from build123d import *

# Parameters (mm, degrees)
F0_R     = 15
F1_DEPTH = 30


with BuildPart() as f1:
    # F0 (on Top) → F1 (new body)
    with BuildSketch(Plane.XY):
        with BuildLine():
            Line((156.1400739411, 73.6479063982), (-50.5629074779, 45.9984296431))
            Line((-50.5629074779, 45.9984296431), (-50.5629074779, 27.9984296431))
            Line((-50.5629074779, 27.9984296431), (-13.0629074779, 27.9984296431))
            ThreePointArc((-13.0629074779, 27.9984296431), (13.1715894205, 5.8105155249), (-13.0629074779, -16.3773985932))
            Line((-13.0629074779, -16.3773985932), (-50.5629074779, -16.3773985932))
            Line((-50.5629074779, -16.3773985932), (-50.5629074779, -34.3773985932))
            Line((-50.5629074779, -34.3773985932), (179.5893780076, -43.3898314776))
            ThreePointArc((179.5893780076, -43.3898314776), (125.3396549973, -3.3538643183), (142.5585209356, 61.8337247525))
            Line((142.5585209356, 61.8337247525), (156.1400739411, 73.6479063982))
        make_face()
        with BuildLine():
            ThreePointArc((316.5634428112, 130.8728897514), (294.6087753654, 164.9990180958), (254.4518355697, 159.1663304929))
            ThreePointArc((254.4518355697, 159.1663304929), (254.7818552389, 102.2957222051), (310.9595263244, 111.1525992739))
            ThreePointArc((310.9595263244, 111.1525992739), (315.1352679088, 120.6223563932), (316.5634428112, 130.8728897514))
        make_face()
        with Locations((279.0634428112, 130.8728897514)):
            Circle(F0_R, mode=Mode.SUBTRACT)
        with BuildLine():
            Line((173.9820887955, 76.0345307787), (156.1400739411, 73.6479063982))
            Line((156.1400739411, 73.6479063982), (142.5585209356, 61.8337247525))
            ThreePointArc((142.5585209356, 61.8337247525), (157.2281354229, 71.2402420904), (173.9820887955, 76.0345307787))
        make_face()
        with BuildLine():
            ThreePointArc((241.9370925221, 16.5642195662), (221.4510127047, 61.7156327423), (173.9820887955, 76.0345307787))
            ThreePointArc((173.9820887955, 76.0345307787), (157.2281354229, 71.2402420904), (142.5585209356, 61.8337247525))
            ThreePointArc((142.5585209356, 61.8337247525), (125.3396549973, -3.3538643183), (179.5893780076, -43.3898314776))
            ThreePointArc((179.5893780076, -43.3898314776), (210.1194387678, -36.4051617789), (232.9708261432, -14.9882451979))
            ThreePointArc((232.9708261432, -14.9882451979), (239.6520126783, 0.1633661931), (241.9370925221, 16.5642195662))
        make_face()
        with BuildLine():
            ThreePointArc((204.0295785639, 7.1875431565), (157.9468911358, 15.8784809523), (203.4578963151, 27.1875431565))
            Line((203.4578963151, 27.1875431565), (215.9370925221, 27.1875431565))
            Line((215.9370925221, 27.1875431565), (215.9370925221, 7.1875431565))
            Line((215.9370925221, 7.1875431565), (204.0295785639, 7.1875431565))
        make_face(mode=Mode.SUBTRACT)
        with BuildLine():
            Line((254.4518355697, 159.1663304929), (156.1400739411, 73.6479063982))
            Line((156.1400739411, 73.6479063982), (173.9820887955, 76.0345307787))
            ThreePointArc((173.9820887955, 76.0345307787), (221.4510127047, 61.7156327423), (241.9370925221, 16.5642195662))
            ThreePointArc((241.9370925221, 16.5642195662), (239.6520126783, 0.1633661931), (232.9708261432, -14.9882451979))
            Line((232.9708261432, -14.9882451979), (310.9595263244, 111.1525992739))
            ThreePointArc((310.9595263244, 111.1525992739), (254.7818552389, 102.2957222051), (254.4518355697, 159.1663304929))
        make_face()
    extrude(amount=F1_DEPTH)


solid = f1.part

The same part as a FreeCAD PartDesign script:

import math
import FreeCAD as App
import Part
import Sketcher
from FreeCAD import Vector
Q = App.Units.Quantity

doc = App.newDocument("Part")
body = doc.addObject("PartDesign::Body", "Body")

sketch1 = body.newObject("Sketcher::SketchObject", "Sketch")
sketch1.AttachmentSupport = (doc.getObject("XY_Plane"), [""])
sketch1.MapMode = "FlatFace"
sketch1.addGeometry([
    Part.LineSegment(Vector(156.140074, 73.647906, 0), Vector(-50.562907, 45.99843, 0)),
    Part.LineSegment(Vector(-50.562907, 45.99843, 0), Vector(-50.562907, 27.99843, 0)),
    Part.LineSegment(Vector(-50.562907, 27.99843, 0), Vector(-13.062907, 27.99843, 0)),
    Part.ArcOfCircle(Part.Circle(Vector(-9.328411, 5.810516, 0), Vector(0, 0, 1), 22.5), math.radians(-99.554032), math.radians(99.554032)),
    Part.LineSegment(Vector(-13.062907, -16.377399, 0), Vector(-50.562907, -16.377399, 0)),
    Part.LineSegment(Vector(-50.562907, -16.377399, 0), Vector(-50.562907, -34.377399, 0)),
    Part.LineSegment(Vector(-50.562907, -34.377399, 0), Vector(179.589378, -43.389831, 0)),
    Part.ArcOfCircle(Part.Circle(Vector(181.937093, 16.56422, 0), Vector(0, 0, 1), 60), math.radians(-92.242475), math.radians(-31.727127)),
    Part.LineSegment(Vector(232.970826, -14.988245, 0), Vector(310.959526, 111.152599, 0)),
    Part.ArcOfCircle(Part.Circle(Vector(279.063443, 130.87289, 0), Vector(0, 0, 1), 37.5), math.radians(-31.727127), math.radians(0)),
    Part.ArcOfCircle(Part.Circle(Vector(279.063443, 130.87289, 0), Vector(0, 0, 1), 37.5), math.radians(0), math.radians(131.01902)),
    Part.LineSegment(Vector(254.451836, 159.16633, 0), Vector(156.140074, 73.647906, 0)),
    Part.LineSegment(Vector(215.937093, 7.187543, 0), Vector(204.029579, 7.187543, 0)),
    Part.ArcOfCircle(Part.Circle(Vector(181.937093, 16.56422, 0), Vector(0, 0, 1), 24), math.radians(26.272348), math.radians(337.002258)),
    Part.LineSegment(Vector(203.457896, 27.187543, 0), Vector(215.937093, 27.187543, 0)),
    Part.LineSegment(Vector(215.937093, 27.187543, 0), Vector(215.937093, 7.187543, 0)),
    Part.Circle(Vector(279.063443, 130.87289, 0), Vector(0, 0, 1), 15),
], False)
sketch1.addConstraint([
    Sketcher.Constraint("Coincident", 0, 2, 1, 1),
    Sketcher.Constraint("Coincident", 1, 2, 2, 1),
    Sketcher.Constraint("Coincident", 2, 2, 3, 2),
    Sketcher.Constraint("Coincident", 3, 1, 4, 1),
    Sketcher.Constraint("Coincident", 4, 2, 5, 1),
    Sketcher.Constraint("Coincident", 5, 2, 6, 1),
    Sketcher.Constraint("Tangent", 6, 2, 7, 1),
    Sketcher.Constraint("Tangent", 7, 2, 8, 1),
    Sketcher.Constraint("Tangent", 8, 2, 9, 1),
    Sketcher.Constraint("Tangent", 9, 2, 10, 1),
    Sketcher.Constraint("Tangent", 10, 2, 11, 1),
    Sketcher.Constraint("Coincident", 11, 2, 0, 1),
    Sketcher.Constraint("Coincident", 12, 2, 13, 2),
    Sketcher.Constraint("Coincident", 13, 1, 14, 1),
    Sketcher.Constraint("Coincident", 14, 2, 15, 1),
    Sketcher.Constraint("Coincident", 15, 2, 12, 1),
    Sketcher.Constraint("Vertical", 1),
    Sketcher.Constraint("Horizontal", 2),
    Sketcher.Constraint("Horizontal", 4),
    Sketcher.Constraint("Vertical", 5),
    Sketcher.Constraint("Horizontal", 12),
    Sketcher.Constraint("Horizontal", 14),
    Sketcher.Constraint("Vertical", 15),
    Sketcher.Constraint("Coincident", 13, 3, 7, 3),
    Sketcher.Constraint("Coincident", 16, 3, 9, 3),
    Sketcher.Constraint("Equal", 9, 10),
    Sketcher.Constraint("Horizontal", 16, 3, 9, 2),
    Sketcher.Constraint("Vertical", 2, 2, 3, 1),
    Sketcher.Constraint("Vertical", 1, 2, 4, 2),
    Sketcher.Constraint("Equal", 1, 5),
    Sketcher.Constraint("Diameter", 16, Q("30 mm")),
    Sketcher.Constraint("Radius", 7, Q("60 mm")),
    Sketcher.Constraint("Radius", 13, Q("24 mm")),
    Sketcher.Constraint("Radius", 3, Q("22.5 mm")),
    Sketcher.Constraint("Radius", 9, Q("37.5 mm")),
    Sketcher.Constraint("DistanceY", 1, 2, 1, 1, Q("18 mm")),
    Sketcher.Constraint("DistanceY", 15, 2, 15, 1, Q("20 mm")),
    Sketcher.Constraint("DistanceX", 2, 1, 2, 2, Q("37.5 mm")),
    Sketcher.Constraint("DistanceX", 2, 2, 7, 3, Q("195 mm")),
    Sketcher.Constraint("DistanceX", 7, 3, 14, 2, Q("34 mm")),
    Sketcher.Constraint("Distance", 8, Q("148.302899 mm")),
    Sketcher.Constraint("DistanceY", 3, 1, -1, 1, Q("16.377399 mm")),
    Sketcher.Constraint("DistanceY", -1, 1, 8, 2, Q("111.152599 mm")),
    Sketcher.Constraint("DistanceX", 7, 2, 8, 2, Q("77.9887 mm")),
    Sketcher.Constraint("DistanceX", 6, 2, 12, 2, Q("24.440201 mm")),
    Sketcher.Constraint("Distance", 0, Q("208.544039 mm")),
    Sketcher.Constraint("Distance", 11, Q("130.30197 mm")),
    Sketcher.Constraint("DistanceX", 3, 3, -1, 1, Q("9.328411 mm")),
    Sketcher.Constraint("DistanceY", -1, 1, 0, 2, Q("45.99843 mm")),
])
pad1 = body.newObject("PartDesign::Pad", "Pad")
pad1.Profile = sketch1
pad1.Length = 30

doc.recompute()
